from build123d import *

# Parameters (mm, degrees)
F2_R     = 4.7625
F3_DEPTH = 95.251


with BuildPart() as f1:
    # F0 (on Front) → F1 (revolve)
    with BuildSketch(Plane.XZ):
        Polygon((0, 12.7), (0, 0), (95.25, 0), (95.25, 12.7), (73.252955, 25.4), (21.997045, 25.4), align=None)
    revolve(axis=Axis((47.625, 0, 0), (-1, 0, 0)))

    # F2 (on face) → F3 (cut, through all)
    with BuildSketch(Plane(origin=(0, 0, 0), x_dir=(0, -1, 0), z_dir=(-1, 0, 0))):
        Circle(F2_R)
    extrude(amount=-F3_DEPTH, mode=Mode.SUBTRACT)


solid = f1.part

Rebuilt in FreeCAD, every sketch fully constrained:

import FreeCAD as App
import Part
import Sketcher
Q = App.Units.Quantity


def add_polygon(sketch, points):
    """Adds a closed chain of lines whose ends are joined by coincident constraints."""
    first, n = sketch.GeometryCount, len(points)
    for a, b in zip(points, points[1:] + points[:1]):
        sketch.addGeometry(Part.LineSegment(App.Vector(*a, 0), App.Vector(*b, 0)), False)
    for i in range(n):
        sketch.addConstraint(Sketcher.Constraint("Coincident", first + i, 2, first + (i + 1) % n, 1))

doc = App.newDocument("Part")
body = doc.addObject("PartDesign::Body", "Body")

# Sketch on XZ plane
sketch1 = body.newObject("Sketcher::SketchObject", "Sketch")
sketch1.AttachmentSupport = (doc.getObject("XZ_Plane"), [""])
sketch1.MapMode = "FlatFace"
add_polygon(sketch1, [(0, 13), (0, 0), (95, 0), (95, 13), (73, 25), (22, 25)])  # lines 0-5
sketch1.addConstraint([
    Sketcher.Constraint("Vertical", 0),
    Sketcher.Constraint("Horizontal", 1),
    Sketcher.Constraint("Vertical", 2),
    Sketcher.Constraint("Horizontal", 4),
    Sketcher.Constraint("Coincident", 0, 2, -1, 1),
    Sketcher.Constraint("Horizontal", 2, 2, 5, 2),
    Sketcher.Constraint("Equal", 3, 5),
    Sketcher.Constraint("Distance", 3, Q("1 in")),
    Sketcher.Constraint("DistanceY", 0, 2, 0, 1, Q("0.5 in")),
    Sketcher.Constraint("DistanceY", -1, 1, 3, 2, Q("1 in")),
    Sketcher.Constraint("DistanceX", 1, 1, 1, 2, Q("3.75 in")),
])
revolution = body.newObject("PartDesign::Revolution", "Revolution")
revolution.Profile = sketch1
revolution.ReferenceAxis = (sketch1, ["H_Axis"])
revolution.Angle = 360

# Sketch on YZ plane
sketch2 = body.newObject("Sketcher::SketchObject", "Sketch001")
sketch2.AttachmentSupport = (doc.getObject("YZ_Plane"), [""])
sketch2.MapMode = "FlatFace"
sketch2.addGeometry(Part.Circle(App.Vector(0, 0, 0), App.Vector(0, 0, 1), 4.8), False)
sketch2.addConstraint([
    Sketcher.Constraint("Coincident", 0, 3, -1, 1),
    Sketcher.Constraint("Diameter", 0, Q("0.375 in")),
])
pocket1 = body.newObject("PartDesign::Pocket", "Pocket")
pocket1.Profile = sketch2
pocket1.Type = "ThroughAll"
pocket1.Reversed = True

doc.recompute()
